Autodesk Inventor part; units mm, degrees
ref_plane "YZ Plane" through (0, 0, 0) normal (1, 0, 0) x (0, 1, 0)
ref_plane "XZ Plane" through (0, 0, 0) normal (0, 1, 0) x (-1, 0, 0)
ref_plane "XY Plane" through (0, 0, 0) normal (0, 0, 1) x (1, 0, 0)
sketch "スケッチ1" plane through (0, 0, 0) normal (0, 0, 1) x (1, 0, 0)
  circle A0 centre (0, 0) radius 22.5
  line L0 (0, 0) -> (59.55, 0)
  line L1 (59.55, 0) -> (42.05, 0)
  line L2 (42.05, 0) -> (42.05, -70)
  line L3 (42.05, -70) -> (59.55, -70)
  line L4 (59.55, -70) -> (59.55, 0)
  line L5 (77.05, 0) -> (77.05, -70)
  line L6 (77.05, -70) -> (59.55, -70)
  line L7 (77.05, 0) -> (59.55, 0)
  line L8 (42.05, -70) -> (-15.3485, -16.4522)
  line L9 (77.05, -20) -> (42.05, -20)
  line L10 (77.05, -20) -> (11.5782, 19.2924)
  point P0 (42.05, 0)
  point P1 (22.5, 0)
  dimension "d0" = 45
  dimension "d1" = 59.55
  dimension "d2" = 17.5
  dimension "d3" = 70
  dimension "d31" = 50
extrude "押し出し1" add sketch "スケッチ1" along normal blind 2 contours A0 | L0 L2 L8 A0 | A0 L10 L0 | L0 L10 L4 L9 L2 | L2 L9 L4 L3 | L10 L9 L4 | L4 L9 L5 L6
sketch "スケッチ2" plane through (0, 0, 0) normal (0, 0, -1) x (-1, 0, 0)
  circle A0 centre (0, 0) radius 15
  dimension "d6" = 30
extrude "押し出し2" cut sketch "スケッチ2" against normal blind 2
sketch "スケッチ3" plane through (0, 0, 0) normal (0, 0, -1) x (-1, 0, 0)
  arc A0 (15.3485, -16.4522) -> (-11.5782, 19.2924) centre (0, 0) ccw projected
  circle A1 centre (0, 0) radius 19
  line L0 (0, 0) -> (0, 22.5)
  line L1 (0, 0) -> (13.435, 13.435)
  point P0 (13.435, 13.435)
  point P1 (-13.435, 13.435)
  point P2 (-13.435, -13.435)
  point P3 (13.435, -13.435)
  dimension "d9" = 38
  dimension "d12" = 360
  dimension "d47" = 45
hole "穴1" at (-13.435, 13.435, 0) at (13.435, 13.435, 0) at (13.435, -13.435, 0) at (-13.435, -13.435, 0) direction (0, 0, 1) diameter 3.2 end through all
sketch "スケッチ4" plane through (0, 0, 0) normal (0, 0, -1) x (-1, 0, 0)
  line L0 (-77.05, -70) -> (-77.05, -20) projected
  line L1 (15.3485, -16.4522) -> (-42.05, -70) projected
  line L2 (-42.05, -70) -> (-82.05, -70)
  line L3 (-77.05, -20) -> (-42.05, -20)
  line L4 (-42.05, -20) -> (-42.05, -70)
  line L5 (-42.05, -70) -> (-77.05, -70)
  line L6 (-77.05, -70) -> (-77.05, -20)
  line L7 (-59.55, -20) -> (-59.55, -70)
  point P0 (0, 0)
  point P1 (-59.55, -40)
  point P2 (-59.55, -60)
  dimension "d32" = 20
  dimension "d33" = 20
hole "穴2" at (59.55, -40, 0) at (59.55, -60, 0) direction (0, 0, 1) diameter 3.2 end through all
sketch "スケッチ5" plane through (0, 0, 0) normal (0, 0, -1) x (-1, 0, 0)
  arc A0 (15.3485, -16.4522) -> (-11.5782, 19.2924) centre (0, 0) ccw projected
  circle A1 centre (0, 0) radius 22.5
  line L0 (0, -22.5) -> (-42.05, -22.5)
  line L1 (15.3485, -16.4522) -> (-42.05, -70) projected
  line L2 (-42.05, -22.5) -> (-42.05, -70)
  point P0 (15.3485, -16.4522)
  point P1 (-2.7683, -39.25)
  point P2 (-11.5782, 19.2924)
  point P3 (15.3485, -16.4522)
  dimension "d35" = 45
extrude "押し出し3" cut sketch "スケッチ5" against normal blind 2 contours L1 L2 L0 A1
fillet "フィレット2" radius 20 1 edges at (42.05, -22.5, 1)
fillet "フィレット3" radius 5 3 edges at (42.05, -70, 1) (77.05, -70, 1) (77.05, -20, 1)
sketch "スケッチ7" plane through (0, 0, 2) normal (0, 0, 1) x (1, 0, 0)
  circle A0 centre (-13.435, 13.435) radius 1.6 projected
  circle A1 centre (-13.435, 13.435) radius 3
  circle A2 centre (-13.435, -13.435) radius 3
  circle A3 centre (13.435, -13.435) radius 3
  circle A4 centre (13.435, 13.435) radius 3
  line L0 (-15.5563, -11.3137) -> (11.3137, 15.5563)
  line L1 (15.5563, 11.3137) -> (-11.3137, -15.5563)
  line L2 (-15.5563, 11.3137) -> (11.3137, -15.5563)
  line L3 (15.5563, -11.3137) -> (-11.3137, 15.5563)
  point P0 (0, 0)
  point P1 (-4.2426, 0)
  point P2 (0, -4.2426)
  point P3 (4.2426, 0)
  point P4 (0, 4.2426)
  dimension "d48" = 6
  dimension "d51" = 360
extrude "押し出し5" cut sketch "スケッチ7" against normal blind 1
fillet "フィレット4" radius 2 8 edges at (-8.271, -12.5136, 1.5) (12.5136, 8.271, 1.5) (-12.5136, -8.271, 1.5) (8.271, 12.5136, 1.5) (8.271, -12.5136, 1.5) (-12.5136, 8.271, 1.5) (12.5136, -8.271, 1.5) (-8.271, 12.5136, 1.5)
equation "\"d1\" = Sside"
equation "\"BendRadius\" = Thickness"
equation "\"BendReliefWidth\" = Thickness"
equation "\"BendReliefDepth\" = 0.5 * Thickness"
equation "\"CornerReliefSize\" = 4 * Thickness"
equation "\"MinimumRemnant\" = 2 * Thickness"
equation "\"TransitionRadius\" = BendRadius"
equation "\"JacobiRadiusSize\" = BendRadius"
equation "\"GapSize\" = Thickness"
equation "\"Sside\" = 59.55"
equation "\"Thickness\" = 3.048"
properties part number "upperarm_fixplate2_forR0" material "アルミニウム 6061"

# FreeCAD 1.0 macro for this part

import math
import FreeCAD as App
import Part
import Sketcher
from FreeCAD import Vector
Q = App.Units.Quantity


def edges_at(feature, points):
    """Names of the edges that pass closest to the given points."""
    edges = feature.Shape.Edges
    near = lambda p: min(range(len(edges)), key=lambda i: edges[i].distToShape(Part.Vertex(*p))[0])
    return sorted({f"Edge{near(p) + 1}" for p in points})

doc = App.newDocument("Part")
body = doc.addObject("PartDesign::Body", "Body")

# Sketch on XY plane
sketch1 = body.newObject("Sketcher::SketchObject", "Sketch")
sketch1.AttachmentSupport = (doc.getObject("XY_Plane"), [""])
sketch1.MapMode = "FlatFace"
sketch1.addGeometry([
    Part.ArcOfCircle(Part.Circle(Vector(0, 0, 0), Vector(0, 0, 1), 22), math.radians(59), math.radians(227)),  # 0
    Part.LineSegment(Vector(-15, -16, 0), Vector(42, -70, 0)),  # 1
    Part.LineSegment(Vector(42, -70, 0), Vector(77, -70, 0)),  # 2
    Part.LineSegment(Vector(77, -70, 0), Vector(77, -20, 0)),  # 3
    Part.LineSegment(Vector(77, -20, 0), Vector(12, 19, 0)),  # 4
], False)
sketch1.addConstraint([
    Sketcher.Constraint("Tangent", 0, 2, 1, 1),
    Sketcher.Constraint("Coincident", 1, 2, 2, 1),
    Sketcher.Constraint("Coincident", 2, 2, 3, 1),
    Sketcher.Constraint("Coincident", 3, 2, 4, 1),
    Sketcher.Constraint("Tangent", 4, 2, 0, 1),
    Sketcher.Constraint("Horizontal", 2),
    Sketcher.Constraint("Vertical", 3),
    Sketcher.Constraint("Coincident", 0, 3, -1, 1),
    Sketcher.Constraint("Radius", 0, 22.5),
    Sketcher.Constraint("DistanceY", 3, 1, 3, 2, 50.0),
    Sketcher.Constraint("DistanceY", 1, 2, -1, 1, 70.0),
    Sketcher.Constraint("DistanceX", 2, 1, 2, 2, 35.0),
    Sketcher.Constraint("Angle", 4, Q("149.0302 deg")),
])
pad1 = body.newObject("PartDesign::Pad", "Pad")
pad1.Profile = sketch1
pad1.Length = 2

# Sketch on XY plane
sketch2 = body.newObject("Sketcher::SketchObject", "Sketch001")
sketch2.AttachmentSupport = (doc.getObject("XY_Plane"), [""])
sketch2.MapMode = "FlatFace"
sketch2.addGeometry(Part.Circle(Vector(0, 0, 0), Vector(0, 0, 1), 15), False)
sketch2.addConstraint([
    Sketcher.Constraint("Coincident", 0, 3, -1, 1),
    Sketcher.Constraint("Diameter", 0, 30.0),
])
pocket1 = body.newObject("PartDesign::Pocket", "Pocket")
pocket1.Profile = sketch2
pocket1.Length = 2
pocket1.Reversed = True

# Sketch on XY plane
sketch3 = body.newObject("Sketcher::SketchObject", "Sketch002")
sketch3.AttachmentSupport = (doc.getObject("XY_Plane"), [""])
sketch3.MapMode = "FlatFace"
sketch3.addGeometry([
    Part.Circle(Vector(-13.4, 13.4, 0), Vector(0, 0, 1), 1.6),
    Part.Circle(Vector(13.4, 13.4, 0), Vector(0, 0, 1), 1.6),
    Part.Circle(Vector(13.4, -13.4, 0), Vector(0, 0, 1), 1.6),
    Part.Circle(Vector(-13.4, -13.4, 0), Vector(0, 0, 1), 1.6),
], False)
sketch3.addConstraint([
    Sketcher.Constraint("Equal", 0, 1),
    Sketcher.Constraint("Equal", 1, 2),
    Sketcher.Constraint("Equal", 2, 3),
    Sketcher.Constraint("Symmetric", 0, 3, 2, 3, -1, 1),
    Sketcher.Constraint("Symmetric", 1, 3, 3, 3, -1, 1),
    Sketcher.Constraint("Symmetric", 0, 3, 1, 3, -2),
    Sketcher.Constraint("Diameter", 0, 3.2),
    Sketcher.Constraint("DistanceX", 0, 3, 1, 3, 26.87),
    Sketcher.Constraint("DistanceY", 2, 3, 1, 3, 26.87),
])
doc.recompute()
hole = body.newObject("PartDesign::Hole", "Hole")
hole.Profile = sketch3
hole.ThreadType = "None"
hole.Diameter = 3.2
hole.DepthType = "ThroughAll"
hole.Reversed = True

# Sketch on XY plane
sketch4 = body.newObject("Sketcher::SketchObject", "Sketch003")
sketch4.AttachmentSupport = (doc.getObject("XY_Plane"), [""])
sketch4.MapMode = "FlatFace"
sketch4.addGeometry([
    Part.Circle(Vector(59.5, -40, 0), Vector(0, 0, 1), 1.6),
    Part.Circle(Vector(59.5, -60, 0), Vector(0, 0, 1), 1.6),
], False)
sketch4.addConstraint([
    Sketcher.Constraint("Equal", 0, 1),
    Sketcher.Constraint("Vertical", 0, 3, 1, 3),
    Sketcher.Constraint("Diameter", 0, 3.2),
    Sketcher.Constraint("DistanceY", 0, 3, -1, 1, 40.0),
    Sketcher.Constraint("DistanceY", 1, 3, -1, 1, 60.0),
    Sketcher.Constraint("DistanceX", -1, 1, 0, 3, 59.55),
])
doc.recompute()
hole2 = body.newObject("PartDesign::Hole", "Hole001")
hole2.Profile = sketch4
hole2.ThreadType = "None"
hole2.Diameter = 3.2
hole2.DepthType = "ThroughAll"
hole2.Reversed = True

# Sketch on XY plane
sketch5 = body.newObject("Sketcher::SketchObject", "Sketch004")
sketch5.AttachmentSupport = (doc.getObject("XY_Plane"), [""])
sketch5.MapMode = "FlatFace"
sketch5.addGeometry([
    Part.LineSegment(Vector(42, -70, 0), Vector(-15, -16, 0)),
    Part.ArcOfCircle(Part.Circle(Vector(0, 0, 0), Vector(0, 0, 1), 22), math.radians(-133), math.radians(-90)),
    Part.LineSegment(Vector(0, -22, 0), Vector(42, -22, 0)),
    Part.LineSegment(Vector(42, -22, 0), Vector(42, -70, 0)),
], False)
sketch5.addConstraint([
    Sketcher.Constraint("Tangent", 0, 2, 1, 1),
    Sketcher.Constraint("Tangent", 1, 2, 2, 1),
    Sketcher.Constraint("Coincident", 2, 2, 3, 1),
    Sketcher.Constraint("Coincident", 3, 2, 0, 1),
    Sketcher.Constraint("Horizontal", 2),
    Sketcher.Constraint("Vertical", 3),
    Sketcher.Constraint("Coincident", 1, 3, -1, 1),
    Sketcher.Constraint("Radius", 1, 22.5),
    Sketcher.Constraint("DistanceY", 3, 2, 3, 1, 47.5),
    Sketcher.Constraint("DistanceX", 2, 1, 2, 2, 42.05),
])
pocket2 = body.newObject("PartDesign::Pocket", "Pocket001")
pocket2.Profile = sketch5
pocket2.Length = 2
pocket2.Reversed = True
doc.recompute()

fillet = body.newObject("PartDesign::Fillet", "Fillet")
fillet.Base = (pocket2, edges_at(pocket2, [(42.05, -22.5, 1)]))
fillet.Radius = 20
doc.recompute()

fillet2 = body.newObject("PartDesign::Fillet", "Fillet001")
fillet2.Base = (fillet, edges_at(fillet, [(42.05, -70, 1), (77.05, -70, 1), (77.05, -20, 1)]))
fillet2.Radius = 5

# Sketch on XY plane
sketch6 = body.newObject("Sketcher::SketchObject", "Sketch005")
sketch6.AttachmentSupport = (doc.getObject("XY_Plane"), [""])
sketch6.MapMode = "FlatFace"
sketch6.AttachmentOffset = App.Placement(Vector(0, 0, 2), App.Rotation())
sketch6.addGeometry([
    Part.ArcOfCircle(Part.Circle(Vector(-13.4, 13.4, 0), Vector(0, 0, 1), 3), math.radians(45), math.radians(225)),  # 0
    Part.LineSegment(Vector(-15.6, 11.3, 0), Vector(-4.2, 0, 0)),  # 1
    Part.LineSegment(Vector(-4.2, 0, 0), Vector(-15.6, -11.3, 0)),  # 2
    Part.ArcOfCircle(Part.Circle(Vector(-13.4, -13.4, 0), Vector(0, 0, 1), 3), math.radians(135), math.radians(315)),  # 3
    Part.LineSegment(Vector(-11.3, -15.6, 0), Vector(0, -4.2, 0)),  # 4
    Part.LineSegment(Vector(0, -4.2, 0), Vector(11.3, -15.6, 0)),  # 5
    Part.ArcOfCircle(Part.Circle(Vector(13.4, -13.4, 0), Vector(0, 0, 1), 3), math.radians(-135), math.radians(45)),  # 6
    Part.LineSegment(Vector(15.6, -11.3, 0), Vector(4.2, 0, 0)),  # 7
    Part.LineSegment(Vector(4.2, 0, 0), Vector(15.6, 11.3, 0)),  # 8
    Part.ArcOfCircle(Part.Circle(Vector(13.4, 13.4, 0), Vector(0, 0, 1), 3), math.radians(-45), math.radians(135)),  # 9
    Part.LineSegment(Vector(11.3, 15.6, 0), Vector(0, 4.2, 0)),  # 10
    Part.LineSegment(Vector(0, 4.2, 0), Vector(-11.3, 15.6, 0)),  # 11
    Part.Circle(Vector(-13.4, 13.4, 0), Vector(0, 0, 1), 1.6),  # 12
], False)
sketch6.addConstraint([
    Sketcher.Constraint("Tangent", 0, 2, 1, 1),
    Sketcher.Constraint("Coincident", 1, 2, 2, 1),
    Sketcher.Constraint("Tangent", 2, 2, 3, 1),
    Sketcher.Constraint("Tangent", 3, 2, 4, 1),
    Sketcher.Constraint("Coincident", 4, 2, 5, 1),
    Sketcher.Constraint("Tangent", 5, 2, 6, 1),
    Sketcher.Constraint("Tangent", 6, 2, 7, 1),
    Sketcher.Constraint("Coincident", 7, 2, 8, 1),
    Sketcher.Constraint("Tangent", 8, 2, 9, 1),
    Sketcher.Constraint("Tangent", 9, 2, 10, 1),
    Sketcher.Constraint("Coincident", 10, 2, 11, 1),
    Sketcher.Constraint("Tangent", 11, 2, 0, 1),
    Sketcher.Constraint("Coincident", 12, 3, 0, 3),
    Sketcher.Constraint("Equal", 0, 3),
    Sketcher.Constraint("Equal", 3, 6),
    Sketcher.Constraint("Equal", 6, 9),
    Sketcher.Constraint("Symmetric", 0, 3, 6, 3, -1, 1),
    Sketcher.Constraint("Symmetric", 3, 3, 9, 3, -1, 1),
    Sketcher.Constraint("Symmetric", 1, 2, 7, 2, -1, 1),
    Sketcher.Constraint("Symmetric", 4, 2, 10, 2, -1, 1),
    Sketcher.Constraint("Symmetric", 3, 3, 6, 3, -2),
    Sketcher.Constraint("PointOnObject", 1, 2, -1),
    Sketcher.Constraint("PointOnObject", 4, 2, -2),
    Sketcher.Constraint("Perpendicular", 1, 2),
    Sketcher.Constraint("Parallel", 2, 4),
    Sketcher.Constraint("Equal", 2, 4),
    Sketcher.Constraint("Radius", 0, 3.0),
    Sketcher.Constraint("Diameter", 12, 3.2),
    Sketcher.Constraint("Distance", 1, 16.0),
])
pocket3 = body.newObject("PartDesign::Pocket", "Pocket002")
pocket3.Profile = sketch6
pocket3.Length = 1
doc.recompute()

fillet3 = body.newObject("PartDesign::Fillet", "Fillet002")
fillet3.Base = (pocket3, edges_at(pocket3, [
    (-8.271, -12.514, 1.5),
    (12.514, 8.271, 1.5),
    (-12.514, -8.271, 1.5),
    (8.271, 12.514, 1.5),
    (8.271, -12.514, 1.5),
    (-12.514, 8.271, 1.5),
    (12.514, -8.271, 1.5),
    (-8.271, 12.514, 1.5),
]))
fillet3.Radius = 2

doc.recompute()
